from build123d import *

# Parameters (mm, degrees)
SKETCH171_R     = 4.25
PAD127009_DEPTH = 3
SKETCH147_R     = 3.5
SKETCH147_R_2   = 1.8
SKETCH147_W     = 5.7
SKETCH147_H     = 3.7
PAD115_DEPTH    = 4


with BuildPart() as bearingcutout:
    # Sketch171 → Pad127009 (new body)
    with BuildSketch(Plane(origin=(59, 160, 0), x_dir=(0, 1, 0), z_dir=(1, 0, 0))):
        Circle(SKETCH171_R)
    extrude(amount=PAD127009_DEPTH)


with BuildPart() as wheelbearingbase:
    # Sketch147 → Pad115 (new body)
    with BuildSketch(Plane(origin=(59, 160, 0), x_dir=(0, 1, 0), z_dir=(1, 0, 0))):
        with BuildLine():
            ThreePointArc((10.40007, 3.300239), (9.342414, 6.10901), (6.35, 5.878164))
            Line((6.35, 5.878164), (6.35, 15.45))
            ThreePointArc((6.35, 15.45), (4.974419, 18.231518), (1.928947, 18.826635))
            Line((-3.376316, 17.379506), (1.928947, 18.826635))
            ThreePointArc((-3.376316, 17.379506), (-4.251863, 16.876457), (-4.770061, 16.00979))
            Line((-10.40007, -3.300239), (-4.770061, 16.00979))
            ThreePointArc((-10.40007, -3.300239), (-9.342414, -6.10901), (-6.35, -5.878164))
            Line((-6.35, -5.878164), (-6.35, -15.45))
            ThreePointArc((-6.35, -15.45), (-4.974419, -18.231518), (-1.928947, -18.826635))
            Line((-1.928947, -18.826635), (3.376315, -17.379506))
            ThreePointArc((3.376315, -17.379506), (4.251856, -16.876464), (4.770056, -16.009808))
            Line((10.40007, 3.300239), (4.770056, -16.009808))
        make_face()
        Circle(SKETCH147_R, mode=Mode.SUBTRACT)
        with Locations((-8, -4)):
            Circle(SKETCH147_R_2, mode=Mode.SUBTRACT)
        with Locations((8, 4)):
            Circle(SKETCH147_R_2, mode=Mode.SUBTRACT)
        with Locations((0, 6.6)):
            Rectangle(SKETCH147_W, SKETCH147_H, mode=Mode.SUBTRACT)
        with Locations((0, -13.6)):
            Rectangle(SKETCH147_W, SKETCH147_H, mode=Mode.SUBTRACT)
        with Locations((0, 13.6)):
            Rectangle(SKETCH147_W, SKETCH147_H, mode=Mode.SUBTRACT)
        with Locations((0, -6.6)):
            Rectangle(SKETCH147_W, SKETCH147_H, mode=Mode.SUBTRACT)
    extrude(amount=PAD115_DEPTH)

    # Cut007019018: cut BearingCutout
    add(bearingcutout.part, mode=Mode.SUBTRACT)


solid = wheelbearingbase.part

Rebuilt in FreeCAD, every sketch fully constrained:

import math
import FreeCAD as App
import Part
import Sketcher

V = App.Vector


def add_polygon(sketch, points):
    """Adds a closed chain of lines whose ends are joined by coincident constraints."""
    first, n = sketch.GeometryCount, len(points)
    for a, b in zip(points, points[1:] + points[:1]):
        sketch.addGeometry(Part.LineSegment(App.Vector(*a, 0), App.Vector(*b, 0)), False)
    for i in range(n):
        sketch.addConstraint(Sketcher.Constraint("Coincident", first + i, 2, first + (i + 1) % n, 1))

doc = App.newDocument("Part")
body = doc.addObject("PartDesign::Body", "Body")

# Sketch on YZ plane
sketch1 = doc.addObject("Sketcher::SketchObject", "Sketch")
body.addObject(sketch1)
sketch1.AttachmentSupport = (doc.YZ_Plane, [""])
sketch1.MapMode = "FlatFace"
sketch1.AttachmentOffset = App.Placement(V(0, 0, 59), App.Rotation())
sketch1.addGeometry(Part.Circle(V(160, 0, 0), V(0, 0, 1), 4.2), False)
sketch1.addConstraint([
    Sketcher.Constraint("PointOnObject", 0, 3, -1),
    Sketcher.Constraint("Diameter", 0, 8.5),
    Sketcher.Constraint("DistanceX", -1, 1, 0, 3, 160.0),
])
pad1 = doc.addObject("PartDesign::Pad", "Pad")
body.addObject(pad1)
pad1.Profile = sketch1
pad1.Length = 3
body2 = doc.addObject("PartDesign::Body", "Body001")

# Sketch on YZ plane
sketch2 = doc.addObject("Sketcher::SketchObject", "Sketch001")
body2.addObject(sketch2)
sketch2.AttachmentSupport = (doc.getObject("YZ_Plane001"), [""])
sketch2.MapMode = "FlatFace"
sketch2.AttachmentOffset = App.Placement(V(0, 0, 59), App.Rotation())
sketch2.addGeometry(Part.ArcOfCircle(Part.Circle(V(168, 4, 0), V(0, 0, 1), 2.5), math.radians(-16), math.radians(131)), False)  # 0
sketch2.addGeometry(Part.LineSegment(V(166.3, 5.9, 0), V(166.3, 15.4, 0)), False)  # 1
sketch2.addGeometry(Part.ArcOfCircle(Part.Circle(V(162.8, 15.4, 0), V(0, 0, 1), 3.5), math.radians(0), math.radians(105)), False)  # 2
sketch2.addGeometry(Part.LineSegment(V(161.9, 18.8, 0), V(156.6, 17.4, 0)), False)  # 3
sketch2.addGeometry(Part.ArcOfCircle(Part.Circle(V(157.2, 15.4, 0), V(0, 0, 1), 2), math.radians(105), math.radians(164)), False)  # 4
sketch2.addGeometry(Part.LineSegment(V(155.2, 16, 0), V(149.6, -3.3, 0)), False)  # 5
sketch2.addGeometry(Part.ArcOfCircle(Part.Circle(V(152, -4, 0), V(0, 0, 1), 2.5), math.radians(164), math.radians(311)), False)  # 6
sketch2.addGeometry(Part.LineSegment(V(153.7, -5.9, 0), V(153.7, -15.4, 0)), False)  # 7
sketch2.addGeometry(Part.ArcOfCircle(Part.Circle(V(157.2, -15.4, 0), V(0, 0, 1), 3.5), math.radians(-180), math.radians(-75)), False)  # 8
sketch2.addGeometry(Part.LineSegment(V(158.1, -18.8, 0), V(163.4, -17.4, 0)), False)  # 9
sketch2.addGeometry(Part.ArcOfCircle(Part.Circle(V(162.8, -15.4, 0), V(0, 0, 1), 2), math.radians(-75), math.radians(-16)), False)  # 10
sketch2.addGeometry(Part.LineSegment(V(164.8, -16, 0), V(170.4, 3.3, 0)), False)  # 11
sketch2.addGeometry(Part.Circle(V(152, -4, 0), V(0, 0, 1), 1.8), False)  # 12
add_polygon(sketch2, [(162.8, -15.4), (157.2, -15.4), (157.2, -11.8), (162.8, -11.8)])  # lines 13-16
add_polygon(sketch2, [(162.8, -8.4), (157.2, -8.4), (157.2, -4.8), (162.8, -4.8)])  # lines 17-20
sketch2.addGeometry(Part.Circle(V(160, 0, 0), V(0, 0, 1), 3.5), False)  # 21
add_polygon(sketch2, [(162.8, 4.8), (157.2, 4.8), (157.2, 8.4), (162.8, 8.4)])  # lines 22-25
sketch2.addGeometry(Part.Circle(V(168, 4, 0), V(0, 0, 1), 1.8), False)  # 26
add_polygon(sketch2, [(162.8, 11.8), (157.2, 11.8), (157.2, 15.4), (162.8, 15.4)])  # lines 27-30
sketch2.addConstraint([
    Sketcher.Constraint("Coincident", 0, 2, 1, 1),
    Sketcher.Constraint("Tangent", 1, 2, 2, 1),
    Sketcher.Constraint("Tangent", 2, 2, 3, 1),
    Sketcher.Constraint("Tangent", 3, 2, 4, 1),
    Sketcher.Constraint("Coincident", 4, 2, 5, 1),
    Sketcher.Constraint("Tangent", 5, 2, 6, 1),
    Sketcher.Constraint("Coincident", 6, 2, 7, 1),
    Sketcher.Constraint("Tangent", 7, 2, 8, 1),
    Sketcher.Constraint("Tangent", 8, 2, 9, 1),
    Sketcher.Constraint("Tangent", 9, 2, 10, 1),
    Sketcher.Constraint("Tangent", 10, 2, 11, 1),
    Sketcher.Constraint("Tangent", 11, 2, 0, 1),
    Sketcher.Constraint("Vertical", 1),
    Sketcher.Constraint("Vertical", 7),
    Sketcher.Constraint("Horizontal", 13),
    Sketcher.Constraint("Vertical", 14),
    Sketcher.Constraint("Horizontal", 15),
    Sketcher.Constraint("Vertical", 16),
    Sketcher.Constraint("Horizontal", 17),
    Sketcher.Constraint("Vertical", 18),
    Sketcher.Constraint("Horizontal", 19),
    Sketcher.Constraint("Vertical", 20),
    Sketcher.Constraint("Horizontal", 22),
    Sketcher.Constraint("Vertical", 23),
    Sketcher.Constraint("Horizontal", 24),
    Sketcher.Constraint("Vertical", 25),
    Sketcher.Constraint("Horizontal", 27),
    Sketcher.Constraint("Vertical", 28),
    Sketcher.Constraint("Horizontal", 29),
    Sketcher.Constraint("Vertical", 30),
    Sketcher.Constraint("Coincident", 12, 3, 6, 3),
    Sketcher.Constraint("Coincident", 26, 3, 0, 3),
    Sketcher.Constraint("Coincident", 13, 2, 8, 3),
    Sketcher.Constraint("Coincident", 16, 2, 10, 3),
    Sketcher.Constraint("Coincident", 28, 2, 4, 3),
    Sketcher.Constraint("Coincident", 29, 2, 2, 3),
    Sketcher.Constraint("Equal", 0, 6),
    Sketcher.Constraint("Equal", 2, 8),
    Sketcher.Constraint("Equal", 4, 10),
    Sketcher.Constraint("Equal", 8, 21),
    Sketcher.Constraint("Equal", 12, 26),
    Sketcher.Constraint("Symmetric", 4, 3, 8, 3, -1),
    Sketcher.Constraint("Symmetric", 18, 2, 22, 2, -1),
    Sketcher.Constraint("Symmetric", 20, 2, 24, 2, -1),
    Sketcher.Constraint("Symmetric", 15, 2, 30, 2, -1),
    Sketcher.Constraint("PointOnObject", 21, 3, -1),
    Sketcher.Constraint("Parallel", 5, 11),
    Sketcher.Constraint("Vertical", 14, 2, 17, 2),
    Sketcher.Constraint("Vertical", 16, 2, 19, 2),
    Sketcher.Constraint("Equal", 1, 7),
    Sketcher.Constraint("Equal", 16, 18),
    Sketcher.Constraint("Diameter", 21, 7.0),
    Sketcher.Constraint("Radius", 4, 2.000002),
    Sketcher.Constraint("Diameter", 12, 3.6),
    Sketcher.Constraint("Radius", 0, 2.5),
    Sketcher.Constraint("DistanceX", 13, 2, 13, 1, 5.7),
    Sketcher.Constraint("DistanceY", 14, 1, 14, 2, 3.7),
    Sketcher.Constraint("DistanceX", -1, 1, 0, 3, 168.0),
    Sketcher.Constraint("DistanceY", -1, 1, 0, 3, 3.999999),
    Sketcher.Constraint("DistanceX", -1, 1, 6, 3, 152.0),
    Sketcher.Constraint("DistanceX", -1, 1, 21, 3, 160.0),
    Sketcher.Constraint("DistanceY", 15, 2, 19, 2, 7.0),
    Sketcher.Constraint("DistanceY", 8, 3, 4, 3, 30.899998),
    Sketcher.Constraint("Distance", 5, 20.11403),
])
pad2 = doc.addObject("PartDesign::Pad", "Pad001")
body2.addObject(pad2)
pad2.Profile = sketch2
pad2.Length = 4
doc.recompute()

boolean = doc.addObject("PartDesign::Boolean", "Boolean")
body2.addObject(boolean)
boolean.Type = "Cut"
boolean.addObjects([body])

doc.recompute()
